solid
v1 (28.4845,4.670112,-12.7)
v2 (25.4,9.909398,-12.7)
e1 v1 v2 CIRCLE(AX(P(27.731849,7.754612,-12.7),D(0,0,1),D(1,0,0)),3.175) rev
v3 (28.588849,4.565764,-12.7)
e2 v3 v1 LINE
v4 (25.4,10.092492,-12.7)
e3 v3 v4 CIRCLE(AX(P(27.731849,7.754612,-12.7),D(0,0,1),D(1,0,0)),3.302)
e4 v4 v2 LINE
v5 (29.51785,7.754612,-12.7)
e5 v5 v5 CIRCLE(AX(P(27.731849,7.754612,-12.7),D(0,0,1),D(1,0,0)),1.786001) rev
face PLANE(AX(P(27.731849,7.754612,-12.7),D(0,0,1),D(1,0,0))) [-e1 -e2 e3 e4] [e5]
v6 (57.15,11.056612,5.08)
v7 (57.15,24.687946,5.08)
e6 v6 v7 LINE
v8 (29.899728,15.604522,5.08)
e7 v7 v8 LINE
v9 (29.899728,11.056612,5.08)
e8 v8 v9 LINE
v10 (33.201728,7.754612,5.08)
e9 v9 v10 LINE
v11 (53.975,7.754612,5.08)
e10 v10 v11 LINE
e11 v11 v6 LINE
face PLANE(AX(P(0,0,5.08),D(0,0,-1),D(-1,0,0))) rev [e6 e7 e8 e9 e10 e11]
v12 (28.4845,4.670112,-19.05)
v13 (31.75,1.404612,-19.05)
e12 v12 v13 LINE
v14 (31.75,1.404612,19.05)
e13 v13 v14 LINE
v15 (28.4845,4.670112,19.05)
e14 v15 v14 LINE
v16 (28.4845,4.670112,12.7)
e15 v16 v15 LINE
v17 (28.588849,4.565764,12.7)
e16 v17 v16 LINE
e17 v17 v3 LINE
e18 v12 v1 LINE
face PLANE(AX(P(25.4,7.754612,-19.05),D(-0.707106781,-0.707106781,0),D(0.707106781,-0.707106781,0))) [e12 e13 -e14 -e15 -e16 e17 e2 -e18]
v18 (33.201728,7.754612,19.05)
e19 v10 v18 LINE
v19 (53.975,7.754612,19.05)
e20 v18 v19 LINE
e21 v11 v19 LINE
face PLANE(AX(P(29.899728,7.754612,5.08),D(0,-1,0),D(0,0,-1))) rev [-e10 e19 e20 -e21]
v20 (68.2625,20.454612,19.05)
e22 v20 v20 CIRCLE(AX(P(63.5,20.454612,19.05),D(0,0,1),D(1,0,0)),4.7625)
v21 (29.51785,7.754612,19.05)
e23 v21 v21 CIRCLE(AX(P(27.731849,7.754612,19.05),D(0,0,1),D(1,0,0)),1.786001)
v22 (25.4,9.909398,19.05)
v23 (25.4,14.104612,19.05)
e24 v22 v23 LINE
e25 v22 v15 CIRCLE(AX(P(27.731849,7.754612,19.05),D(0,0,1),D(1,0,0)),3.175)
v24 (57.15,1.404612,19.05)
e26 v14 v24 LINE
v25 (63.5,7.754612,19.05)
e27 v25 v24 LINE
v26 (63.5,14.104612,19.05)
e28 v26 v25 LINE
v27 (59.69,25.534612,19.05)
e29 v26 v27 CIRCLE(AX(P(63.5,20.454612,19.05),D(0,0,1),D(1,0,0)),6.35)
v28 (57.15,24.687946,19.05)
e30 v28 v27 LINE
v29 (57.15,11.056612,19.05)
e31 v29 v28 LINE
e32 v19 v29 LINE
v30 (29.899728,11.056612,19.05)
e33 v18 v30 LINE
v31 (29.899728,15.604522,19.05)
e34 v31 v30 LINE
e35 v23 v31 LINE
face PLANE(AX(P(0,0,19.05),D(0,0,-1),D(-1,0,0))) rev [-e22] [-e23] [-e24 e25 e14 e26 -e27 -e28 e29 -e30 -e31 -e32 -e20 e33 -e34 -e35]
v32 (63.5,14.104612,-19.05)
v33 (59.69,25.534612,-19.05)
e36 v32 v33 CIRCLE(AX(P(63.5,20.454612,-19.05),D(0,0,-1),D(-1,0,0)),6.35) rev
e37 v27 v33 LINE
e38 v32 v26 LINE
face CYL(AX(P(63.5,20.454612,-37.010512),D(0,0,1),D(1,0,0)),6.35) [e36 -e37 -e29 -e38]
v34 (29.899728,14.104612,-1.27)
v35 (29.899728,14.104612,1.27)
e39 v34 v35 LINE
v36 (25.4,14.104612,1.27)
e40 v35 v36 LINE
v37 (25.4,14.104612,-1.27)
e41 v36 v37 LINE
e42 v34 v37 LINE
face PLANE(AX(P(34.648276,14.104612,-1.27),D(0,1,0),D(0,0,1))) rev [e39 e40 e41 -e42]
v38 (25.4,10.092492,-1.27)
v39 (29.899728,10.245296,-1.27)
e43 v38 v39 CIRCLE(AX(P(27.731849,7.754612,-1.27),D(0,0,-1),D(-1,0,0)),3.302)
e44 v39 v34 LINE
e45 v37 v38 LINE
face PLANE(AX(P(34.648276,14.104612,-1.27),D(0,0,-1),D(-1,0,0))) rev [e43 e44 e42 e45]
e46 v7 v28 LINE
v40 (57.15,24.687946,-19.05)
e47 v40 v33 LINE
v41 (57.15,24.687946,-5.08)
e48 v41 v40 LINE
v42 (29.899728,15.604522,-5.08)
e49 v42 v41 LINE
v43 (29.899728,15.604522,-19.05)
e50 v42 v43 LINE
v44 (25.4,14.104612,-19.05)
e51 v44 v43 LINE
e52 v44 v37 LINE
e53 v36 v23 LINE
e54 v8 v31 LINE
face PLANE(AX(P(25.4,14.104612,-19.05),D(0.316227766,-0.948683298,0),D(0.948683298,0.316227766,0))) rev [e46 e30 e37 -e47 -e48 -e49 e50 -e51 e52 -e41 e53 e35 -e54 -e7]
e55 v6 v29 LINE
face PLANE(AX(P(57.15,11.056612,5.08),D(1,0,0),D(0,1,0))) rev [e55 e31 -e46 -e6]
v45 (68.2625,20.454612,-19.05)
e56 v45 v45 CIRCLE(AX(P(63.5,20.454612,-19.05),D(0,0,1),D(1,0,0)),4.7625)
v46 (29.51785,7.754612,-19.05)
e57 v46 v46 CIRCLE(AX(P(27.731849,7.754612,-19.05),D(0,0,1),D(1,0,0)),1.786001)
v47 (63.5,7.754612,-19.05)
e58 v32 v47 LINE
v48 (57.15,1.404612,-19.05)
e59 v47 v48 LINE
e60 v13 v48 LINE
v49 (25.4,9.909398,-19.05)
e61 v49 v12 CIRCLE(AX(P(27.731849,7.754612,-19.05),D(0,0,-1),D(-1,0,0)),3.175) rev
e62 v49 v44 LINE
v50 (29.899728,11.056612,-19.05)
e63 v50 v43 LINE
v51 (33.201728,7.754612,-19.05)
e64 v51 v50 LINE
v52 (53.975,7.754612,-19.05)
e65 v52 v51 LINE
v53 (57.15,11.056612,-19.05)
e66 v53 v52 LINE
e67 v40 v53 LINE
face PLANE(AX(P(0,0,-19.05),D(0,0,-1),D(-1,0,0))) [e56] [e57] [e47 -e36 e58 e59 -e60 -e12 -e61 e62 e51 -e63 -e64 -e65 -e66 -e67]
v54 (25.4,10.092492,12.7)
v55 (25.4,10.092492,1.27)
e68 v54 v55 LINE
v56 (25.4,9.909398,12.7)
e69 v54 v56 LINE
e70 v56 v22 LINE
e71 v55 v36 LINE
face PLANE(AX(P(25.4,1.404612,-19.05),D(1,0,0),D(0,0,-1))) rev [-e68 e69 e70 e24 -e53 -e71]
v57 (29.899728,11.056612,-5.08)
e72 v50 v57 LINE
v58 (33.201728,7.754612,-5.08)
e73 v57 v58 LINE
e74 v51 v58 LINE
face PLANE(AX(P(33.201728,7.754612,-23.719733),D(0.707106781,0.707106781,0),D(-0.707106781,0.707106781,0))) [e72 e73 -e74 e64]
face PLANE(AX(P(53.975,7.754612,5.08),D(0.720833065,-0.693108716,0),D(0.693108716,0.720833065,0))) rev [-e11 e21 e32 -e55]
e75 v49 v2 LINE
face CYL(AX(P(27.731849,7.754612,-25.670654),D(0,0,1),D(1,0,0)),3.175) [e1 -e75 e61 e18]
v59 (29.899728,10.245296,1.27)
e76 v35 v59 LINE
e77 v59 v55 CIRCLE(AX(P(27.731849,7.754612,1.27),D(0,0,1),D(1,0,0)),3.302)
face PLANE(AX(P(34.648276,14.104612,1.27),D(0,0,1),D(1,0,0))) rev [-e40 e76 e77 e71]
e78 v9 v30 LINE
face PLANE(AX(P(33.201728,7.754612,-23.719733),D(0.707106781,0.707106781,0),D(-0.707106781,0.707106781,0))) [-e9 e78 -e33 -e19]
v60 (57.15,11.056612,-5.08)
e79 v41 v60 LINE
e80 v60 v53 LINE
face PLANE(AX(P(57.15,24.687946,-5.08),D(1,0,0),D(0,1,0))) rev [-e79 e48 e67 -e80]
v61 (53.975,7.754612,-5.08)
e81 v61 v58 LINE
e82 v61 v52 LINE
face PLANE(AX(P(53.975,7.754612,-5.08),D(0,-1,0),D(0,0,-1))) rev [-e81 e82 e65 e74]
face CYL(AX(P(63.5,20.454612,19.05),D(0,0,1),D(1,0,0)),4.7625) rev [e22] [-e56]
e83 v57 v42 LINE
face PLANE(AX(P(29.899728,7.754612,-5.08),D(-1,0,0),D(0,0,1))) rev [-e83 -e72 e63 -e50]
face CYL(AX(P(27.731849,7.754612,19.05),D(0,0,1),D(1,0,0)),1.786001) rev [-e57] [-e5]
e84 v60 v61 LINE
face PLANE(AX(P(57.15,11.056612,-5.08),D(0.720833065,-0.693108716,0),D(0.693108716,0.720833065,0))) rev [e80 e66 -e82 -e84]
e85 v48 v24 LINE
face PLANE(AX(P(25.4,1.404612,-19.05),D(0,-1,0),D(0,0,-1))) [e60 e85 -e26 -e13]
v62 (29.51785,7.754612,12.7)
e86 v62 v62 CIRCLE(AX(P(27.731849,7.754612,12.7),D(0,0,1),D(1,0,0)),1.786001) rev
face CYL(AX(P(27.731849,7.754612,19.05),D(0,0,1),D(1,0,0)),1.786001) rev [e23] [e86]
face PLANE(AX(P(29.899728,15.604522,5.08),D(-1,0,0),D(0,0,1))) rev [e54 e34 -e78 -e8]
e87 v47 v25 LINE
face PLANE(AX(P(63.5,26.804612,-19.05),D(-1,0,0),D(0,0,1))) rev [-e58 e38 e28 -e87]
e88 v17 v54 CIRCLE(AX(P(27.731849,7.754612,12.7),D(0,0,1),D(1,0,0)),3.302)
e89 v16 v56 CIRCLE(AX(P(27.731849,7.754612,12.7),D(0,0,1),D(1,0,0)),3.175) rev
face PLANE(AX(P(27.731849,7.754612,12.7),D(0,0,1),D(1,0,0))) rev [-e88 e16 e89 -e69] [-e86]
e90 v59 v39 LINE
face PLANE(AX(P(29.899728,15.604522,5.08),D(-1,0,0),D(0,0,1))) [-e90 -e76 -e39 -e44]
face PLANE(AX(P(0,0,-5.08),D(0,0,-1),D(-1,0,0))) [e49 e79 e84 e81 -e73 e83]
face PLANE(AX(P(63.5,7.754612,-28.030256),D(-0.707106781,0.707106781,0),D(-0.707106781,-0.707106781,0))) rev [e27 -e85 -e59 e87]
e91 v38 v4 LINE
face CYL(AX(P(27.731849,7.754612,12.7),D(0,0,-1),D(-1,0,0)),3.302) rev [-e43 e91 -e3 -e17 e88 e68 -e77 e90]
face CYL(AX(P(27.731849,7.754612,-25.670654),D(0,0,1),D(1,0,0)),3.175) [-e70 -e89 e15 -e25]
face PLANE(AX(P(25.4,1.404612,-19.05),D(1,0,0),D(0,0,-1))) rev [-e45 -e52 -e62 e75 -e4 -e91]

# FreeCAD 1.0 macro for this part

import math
import FreeCAD as App
import Part
import Sketcher

V = App.Vector
Q = App.Units.Quantity

doc = App.newDocument("Part")
body = doc.addObject("PartDesign::Body", "Body")

# Sketch on XY plane
sketch1 = body.newObject("Sketcher::SketchObject", "Sketch")
sketch1.AttachmentSupport = (doc.getObject("XY_Plane"), [""])
sketch1.MapMode = "FlatFace"
sketch1.addGeometry([
    Part.LineSegment(V(25.4, 14.104612, 0), V(25.4, 1.404612, 0)),
    Part.LineSegment(V(25.4, 1.404612, 0), V(63.5, 1.404612, 0)),
    Part.LineSegment(V(63.5, 1.404612, 0), V(63.5, 26.804612, 0)),
    Part.LineSegment(V(63.5, 26.804612, 0), V(25.4, 14.104612, 0)),
], False)
sketch1.addConstraint([
    Sketcher.Constraint("Coincident", 0, 2, 1, 1),
    Sketcher.Constraint("Coincident", 1, 2, 2, 1),
    Sketcher.Constraint("Coincident", 2, 2, 3, 1),
    Sketcher.Constraint("Coincident", 3, 2, 0, 1),
    Sketcher.Constraint("Vertical", 0),
    Sketcher.Constraint("Horizontal", 1),
    Sketcher.Constraint("Vertical", 2),
    Sketcher.Constraint("DistanceY", 2, 1, 2, 2, Q("1 in")),
    Sketcher.Constraint("DistanceX", 1, 1, 1, 2, Q("1.5 in")),
    Sketcher.Constraint("DistanceY", 0, 2, 0, 1, Q("0.5 in")),
    Sketcher.Constraint("DistanceX", -1, 1, 0, 2, Q("1 in")),
    Sketcher.Constraint("DistanceY", -1, 1, 0, 2, Q("1.404612 mm")),
])
pad1 = body.newObject("PartDesign::Pad", "Pad")
pad1.Profile = sketch1
pad1.Type = "TwoLengths"
pad1.Length = Q("0.75 in")
pad1.Length2 = Q("0.75 in")

# Sketch on XY plane
sketch2 = body.newObject("Sketcher::SketchObject", "Sketch001")
sketch2.AttachmentSupport = (doc.getObject("XY_Plane"), [""])
sketch2.MapMode = "FlatFace"
sketch2.AttachmentOffset = App.Placement(V(0, 0, 0.75 * 25.4), App.Rotation())
sketch2.addGeometry(Part.Circle(V(63.5, 20.454612, 0), V(0, 0, 1), 6.35), False)
sketch2.addConstraint([
    Sketcher.Constraint("Diameter", 0, Q("0.5 in")),
    Sketcher.Constraint("DistanceX", -1, 1, 0, 3, Q("2.5 in")),
    Sketcher.Constraint("DistanceY", -1, 1, 0, 3, Q("20.454612 mm")),
])
pad2 = body.newObject("PartDesign::Pad", "Pad001")
pad2.Profile = sketch2
pad2.Length = Q("1.5 in")
pad2.Reversed = True

# Sketch on XY plane
sketch3 = body.newObject("Sketcher::SketchObject", "Sketch002")
sketch3.AttachmentSupport = (doc.getObject("XY_Plane"), [""])
sketch3.MapMode = "FlatFace"
sketch3.AttachmentOffset = App.Placement(V(0, 0, 0.75 * 25.4), App.Rotation())
sketch3.addGeometry(Part.Circle(V(63.5, 20.454612, 0), V(0, 0, 1), 4.7625), False)
sketch3.addConstraint([
    Sketcher.Constraint("Diameter", 0, Q("0.375 in")),
    Sketcher.Constraint("DistanceX", -1, 1, 0, 3, Q("2.5 in")),
    Sketcher.Constraint("DistanceY", -1, 1, 0, 3, Q("20.454612 mm")),
])
doc.recompute()
hole = body.newObject("PartDesign::Hole", "Hole")
hole.Profile = sketch3
hole.ThreadType = "None"
hole.Diameter = Q("0.375 in")
hole.DepthType = "ThroughAll"

# Sketch on XY plane
sketch4 = body.newObject("Sketcher::SketchObject", "Sketch003")
sketch4.AttachmentSupport = (doc.getObject("XY_Plane"), [""])
sketch4.MapMode = "FlatFace"
sketch4.AttachmentOffset = App.Placement(V(0, 0, 0.75 * 25.4), App.Rotation())
sketch4.addGeometry([
    Part.LineSegment(V(63.5, 7.754612, 0), V(57.15, 1.404612, 0)),
    Part.LineSegment(V(57.15, 1.404612, 0), V(63.5, 1.404612, 0)),
    Part.LineSegment(V(63.5, 1.404612, 0), V(63.5, 7.754612, 0)),
], False)
sketch4.addConstraint([
    Sketcher.Constraint("Coincident", 0, 2, 1, 1),
    Sketcher.Constraint("Coincident", 1, 2, 2, 1),
    Sketcher.Constraint("Coincident", 2, 2, 0, 1),
    Sketcher.Constraint("Horizontal", 1),
    Sketcher.Constraint("Vertical", 2),
    Sketcher.Constraint("Equal", 1, 2),
    Sketcher.Constraint("DistanceX", 1, 1, 1, 2, Q("0.25 in")),
    Sketcher.Constraint("DistanceX", -1, 1, 1, 2, Q("2.5 in")),
    Sketcher.Constraint("DistanceY", -1, 1, 0, 2, Q("1.404612 mm")),
])
pocket1 = body.newObject("PartDesign::Pocket", "Pocket")
pocket1.Profile = sketch4
pocket1.Length = Q("1.5 in")

# Sketch on XY plane
sketch5 = body.newObject("Sketcher::SketchObject", "Sketch004")
sketch5.AttachmentSupport = (doc.getObject("XY_Plane"), [""])
sketch5.MapMode = "FlatFace"
sketch5.AttachmentOffset = App.Placement(V(0, 0, 0.75 * 25.4), App.Rotation())
sketch5.addGeometry([
    Part.LineSegment(V(29.899728, 7.754612, 0), V(53.975, 7.754612, 0)),  # 0
    Part.LineSegment(V(53.975, 7.754612, 0), V(57.15, 11.056612, 0)),  # 1
    Part.LineSegment(V(57.15, 11.056612, 0), V(57.15, 24.687946, 0)),  # 2
    Part.LineSegment(V(57.15, 24.687946, 0), V(29.899728, 15.604522, 0)),  # 3
    Part.LineSegment(V(29.899728, 15.604522, 0), V(29.899728, 7.754612, 0)),  # 4
], False)
sketch5.addConstraint([
    Sketcher.Constraint("Coincident", 0, 2, 1, 1),
    Sketcher.Constraint("Coincident", 1, 2, 2, 1),
    Sketcher.Constraint("Coincident", 2, 2, 3, 1),
    Sketcher.Constraint("Coincident", 3, 2, 4, 1),
    Sketcher.Constraint("Coincident", 4, 2, 0, 1),
    Sketcher.Constraint("Horizontal", 0),
    Sketcher.Constraint("Vertical", 2),
    Sketcher.Constraint("Vertical", 4),
    Sketcher.Constraint("DistanceX", -1, 1, 1, 2, Q("2.25 in")),
    Sketcher.Constraint("DistanceY", 0, 2, 1, 2, Q("0.13 in")),
    Sketcher.Constraint("DistanceX", -1, 1, 0, 2, Q("2.125 in")),
    Sketcher.Constraint("DistanceY", 4, 2, 4, 1, Q("7.849909 mm")),
    Sketcher.Constraint("Distance", 3, Q("28.724309 mm")),
    Sketcher.Constraint("DistanceX", 0, 1, 0, 2, Q("24.075272 mm")),
    Sketcher.Constraint("DistanceY", -1, 1, 3, 2, Q("15.604522 mm")),
])
pocket2 = body.newObject("PartDesign::Pocket", "Pocket001")
pocket2.Profile = sketch5
pocket2.Length = Q("0.55 in")

# Sketch on XY plane
sketch6 = body.newObject("Sketcher::SketchObject", "Sketch005")
sketch6.AttachmentSupport = (doc.getObject("XY_Plane"), [""])
sketch6.MapMode = "FlatFace"
sketch6.AttachmentOffset = App.Placement(V(0, 0, -0.75 * 25.4), App.Rotation())
sketch6.addGeometry([
    Part.LineSegment(V(57.15, 24.687946, 0), V(57.15, 11.056612, 0)),  # 0
    Part.LineSegment(V(57.15, 11.056612, 0), V(53.975, 7.754612, 0)),  # 1
    Part.LineSegment(V(53.975, 7.754612, 0), V(29.899728, 7.754612, 0)),  # 2
    Part.LineSegment(V(29.899728, 7.754612, 0), V(29.899728, 15.604522, 0)),  # 3
    Part.LineSegment(V(29.899728, 15.604522, 0), V(57.15, 24.687946, 0)),  # 4
], False)
sketch6.addConstraint([
    Sketcher.Constraint("Coincident", 0, 2, 1, 1),
    Sketcher.Constraint("Coincident", 1, 2, 2, 1),
    Sketcher.Constraint("Coincident", 2, 2, 3, 1),
    Sketcher.Constraint("Coincident", 3, 2, 4, 1),
    Sketcher.Constraint("Coincident", 4, 2, 0, 1),
    Sketcher.Constraint("Vertical", 0),
    Sketcher.Constraint("Horizontal", 2),
    Sketcher.Constraint("Vertical", 3),
    Sketcher.Constraint("DistanceX", -1, 1, 0, 2, Q("2.25 in")),
    Sketcher.Constraint("DistanceY", 1, 2, 0, 2, Q("0.13 in")),
    Sketcher.Constraint("DistanceX", -1, 1, 1, 2, Q("2.125 in")),
    Sketcher.Constraint("DistanceY", 3, 1, 3, 2, Q("7.849909 mm")),
    Sketcher.Constraint("Distance", 4, Q("28.724309 mm")),
    Sketcher.Constraint("DistanceX", 2, 2, 2, 1, Q("24.075272 mm")),
    Sketcher.Constraint("DistanceY", -1, 1, 3, 2, Q("15.604522 mm")),
])
pocket3 = body.newObject("PartDesign::Pocket", "Pocket002")
pocket3.Profile = sketch6
pocket3.Length = Q("0.55 in")
pocket3.Reversed = True

# Sketch on XY plane
sketch7 = body.newObject("Sketcher::SketchObject", "Sketch006")
sketch7.AttachmentSupport = (doc.getObject("XY_Plane"), [""])
sketch7.MapMode = "FlatFace"
sketch7.AttachmentOffset = App.Placement(V(0, 0, 0.75 * 25.4), App.Rotation())
sketch7.addGeometry([
    Part.LineSegment(V(31.75, 1.404612, 0), V(25.4, 7.754612, 0)),
    Part.LineSegment(V(25.4, 7.754612, 0), V(25.4, 1.404612, 0)),
    Part.LineSegment(V(25.4, 1.404612, 0), V(31.75, 1.404612, 0)),
], False)
sketch7.addConstraint([
    Sketcher.Constraint("Coincident", 0, 2, 1, 1),
    Sketcher.Constraint("Coincident", 1, 2, 2, 1),
    Sketcher.Constraint("Coincident", 2, 2, 0, 1),
    Sketcher.Constraint("Vertical", 1),
    Sketcher.Constraint("Horizontal", 2),
    Sketcher.Constraint("Equal", 2, 1),
    Sketcher.Constraint("DistanceX", -1, 1, 0, 2, Q("1 in")),
    Sketcher.Constraint("DistanceX", 2, 1, 2, 2, Q("0.25 in")),
    Sketcher.Constraint("DistanceY", -1, 1, 0, 2, Q("7.754612 mm")),
])
pocket4 = body.newObject("PartDesign::Pocket", "Pocket003")
pocket4.Profile = sketch7
pocket4.Type = "ThroughAll"

# Sketch on XY plane
sketch8 = body.newObject("Sketcher::SketchObject", "Sketch007")
sketch8.AttachmentSupport = (doc.getObject("XY_Plane"), [""])
sketch8.MapMode = "FlatFace"
sketch8.AttachmentOffset = App.Placement(V(0, 0, 0.75 * 25.4), App.Rotation())
sketch8.addGeometry([
    Part.LineSegment(V(33.201728, 7.754612, 0), V(29.899728, 11.056612, 0)),
    Part.LineSegment(V(29.899728, 11.056612, 0), V(29.899728, 7.754612, 0)),
    Part.LineSegment(V(29.899728, 7.754612, 0), V(33.201728, 7.754612, 0)),
], False)
sketch8.addConstraint([
    Sketcher.Constraint("Coincident", 0, 2, 1, 1),
    Sketcher.Constraint("Coincident", 1, 2, 2, 1),
    Sketcher.Constraint("Coincident", 2, 2, 0, 1),
    Sketcher.Constraint("Vertical", 1),
    Sketcher.Constraint("Horizontal", 2),
    Sketcher.Constraint("Equal", 2, 1),
    Sketcher.Constraint("DistanceX", 2, 1, 2, 2, Q("0.13 in")),
    Sketcher.Constraint("DistanceX", -1, 1, 0, 2, Q("29.899728 mm")),
    Sketcher.Constraint("DistanceY", -1, 1, 0, 2, Q("11.056612 mm")),
])
pad3 = body.newObject("PartDesign::Pad", "Pad002")
pad3.Profile = sketch8
pad3.Length = Q("1.5 in")
pad3.Reversed = True

# Sketch on XY plane
sketch9 = body.newObject("Sketcher::SketchObject", "Sketch008")
sketch9.AttachmentSupport = (doc.getObject("XY_Plane"), [""])
sketch9.MapMode = "FlatFace"
sketch9.AttachmentOffset = App.Placement(V(0, 0, 0.75 * 25.4), App.Rotation())
sketch9.addGeometry([
    Part.ArcOfCircle(Part.Circle(V(27.731849, 7.754612, 0), V(0, 0, 1), 3.175), math.radians(-76.287188), math.radians(0)),
    Part.ArcOfCircle(Part.Circle(V(27.731849, 7.754612, 0), V(0, 0, 1), 3.175), math.radians(0), math.radians(137.259982)),
    Part.ArcOfCircle(Part.Circle(V(27.731849, 7.754612, 0), V(0, 0, 1), 3.175), math.radians(137.259982), math.radians(283.712812)),
], False)
sketch9.addConstraint([
    Sketcher.Constraint("Tangent", 0, 2, 1, 1),
    Sketcher.Constraint("Tangent", 1, 2, 2, 1),
    Sketcher.Constraint("Tangent", 2, 2, 0, 1),
    Sketcher.Constraint("Horizontal", 2, 3, 0, 2),
    Sketcher.Constraint("DistanceX", -1, 1, 1, 2, Q("1 in")),
    Sketcher.Constraint("Radius", 0, Q("0.125 in")),
    Sketcher.Constraint("DistanceY", -1, 1, 1, 2, Q("9.909398 mm")),
    Sketcher.Constraint("DistanceX", -1, 1, 2, 2, Q("28.4845 mm")),
    Sketcher.Constraint("DistanceY", 2, 2, 2, 3, Q("3.0845 mm")),
])
pad4 = body.newObject("PartDesign::Pad", "Pad003")
pad4.Profile = sketch9
pad4.Length = Q("1.5 in")
pad4.Reversed = True

# Sketch on XY plane
sketch10 = body.newObject("Sketcher::SketchObject", "Sketch009")
sketch10.AttachmentSupport = (doc.getObject("XY_Plane"), [""])
sketch10.MapMode = "FlatFace"
sketch10.AttachmentOffset = App.Placement(V(0, 0, 0.75 * 25.4), App.Rotation())
sketch10.addGeometry(Part.Circle(V(27.731849, 7.754612, 0), V(0, 0, 1), 1.786001), False)
sketch10.addConstraint([
    Sketcher.Constraint("Diameter", 0, Q("3.572002 mm")),
    Sketcher.Constraint("DistanceX", -1, 1, 0, 3, Q("27.731849 mm")),
    Sketcher.Constraint("DistanceY", -1, 1, 0, 3, Q("7.754612 mm")),
])
doc.recompute()
hole2 = body.newObject("PartDesign::Hole", "Hole001")
hole2.Profile = sketch10
hole2.ThreadType = "None"
hole2.Diameter = 3.572002
hole2.DepthType = "ThroughAll"

# Sketch on XY plane
sketch11 = body.newObject("Sketcher::SketchObject", "Sketch010")
sketch11.AttachmentSupport = (doc.getObject("XY_Plane"), [""])
sketch11.MapMode = "FlatFace"
sketch11.addGeometry(Part.Circle(V(27.731849, 7.754612, 0), V(0, 0, 1), 3.302), False)
sketch11.addConstraint([
    Sketcher.Constraint("Diameter", 0, Q("0.26 in")),
    Sketcher.Constraint("DistanceX", -1, 1, 0, 3, Q("27.731849 mm")),
    Sketcher.Constraint("DistanceY", -1, 1, 0, 3, Q("7.754612 mm")),
])
pocket5 = body.newObject("PartDesign::Pocket", "Pocket004")
pocket5.Profile = sketch11
pocket5.Type = "TwoLengths"
pocket5.Length = Q("0.5 in")
pocket5.Length2 = Q("0.5 in")
pocket5.Reversed = True

# Sketch on YZ plane
sketch12 = body.newObject("Sketcher::SketchObject", "Sketch011")
sketch12.AttachmentSupport = (doc.getObject("YZ_Plane"), [""])
sketch12.MapMode = "FlatFace"
sketch12.AttachmentOffset = App.Placement(V(0, 0, 1 * 25.4), App.Rotation())
sketch12.addGeometry([
    Part.LineSegment(V(14.104612, -1.27, 0), V(10.092492, -1.27, 0)),
    Part.LineSegment(V(10.092492, -1.27, 0), V(10.092492, 1.27, 0)),
    Part.LineSegment(V(10.092492, 1.27, 0), V(14.104612, 1.27, 0)),
    Part.LineSegment(V(14.104612, 1.27, 0), V(14.104612, -1.27, 0)),
], False)
sketch12.addConstraint([
    Sketcher.Constraint("Coincident", 0, 2, 1, 1),
    Sketcher.Constraint("Coincident", 1, 2, 2, 1),
    Sketcher.Constraint("Coincident", 2, 2, 3, 1),
    Sketcher.Constraint("Coincident", 3, 2, 0, 1),
    Sketcher.Constraint("Horizontal", 0),
    Sketcher.Constraint("Vertical", 1),
    Sketcher.Constraint("Horizontal", 2),
    Sketcher.Constraint("Vertical", 3),
    Sketcher.Constraint("DistanceY", 1, 1, 1, 2, Q("0.1 in")),
    Sketcher.Constraint("DistanceY", 0, 2, -1, 1, Q("0.05 in")),
    Sketcher.Constraint("DistanceX", 0, 2, 0, 1, Q("4.01212 mm")),
    Sketcher.Constraint("DistanceX", -1, 1, 0, 2, Q("10.092492 mm")),
])
pocket6 = body.newObject("PartDesign::Pocket", "Pocket005")
pocket6.Profile = sketch12
pocket6.Length = 4.499728
pocket6.Reversed = True

doc.recompute()
